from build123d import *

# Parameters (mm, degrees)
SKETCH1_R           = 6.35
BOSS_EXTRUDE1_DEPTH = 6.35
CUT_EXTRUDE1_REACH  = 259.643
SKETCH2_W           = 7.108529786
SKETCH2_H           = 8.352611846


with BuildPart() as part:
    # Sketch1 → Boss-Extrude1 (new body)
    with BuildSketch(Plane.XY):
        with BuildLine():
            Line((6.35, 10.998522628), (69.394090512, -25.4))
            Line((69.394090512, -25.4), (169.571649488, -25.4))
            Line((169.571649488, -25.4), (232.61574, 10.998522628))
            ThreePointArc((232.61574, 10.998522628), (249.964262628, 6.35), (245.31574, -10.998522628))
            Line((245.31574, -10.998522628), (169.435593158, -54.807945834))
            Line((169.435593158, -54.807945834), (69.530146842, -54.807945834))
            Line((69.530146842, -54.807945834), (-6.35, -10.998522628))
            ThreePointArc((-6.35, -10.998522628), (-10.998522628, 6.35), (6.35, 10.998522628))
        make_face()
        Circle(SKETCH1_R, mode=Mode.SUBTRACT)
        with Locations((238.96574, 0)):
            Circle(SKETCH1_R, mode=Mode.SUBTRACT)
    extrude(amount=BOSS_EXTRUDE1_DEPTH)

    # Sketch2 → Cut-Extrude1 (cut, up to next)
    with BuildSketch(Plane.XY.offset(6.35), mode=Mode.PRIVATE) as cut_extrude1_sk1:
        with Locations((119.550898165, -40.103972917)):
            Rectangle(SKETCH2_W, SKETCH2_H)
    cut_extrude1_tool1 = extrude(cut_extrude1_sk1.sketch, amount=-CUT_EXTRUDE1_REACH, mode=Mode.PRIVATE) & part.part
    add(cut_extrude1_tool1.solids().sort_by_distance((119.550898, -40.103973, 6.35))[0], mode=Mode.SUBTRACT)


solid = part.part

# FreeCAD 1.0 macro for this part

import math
import FreeCAD as App
import Part
import Sketcher

V = App.Vector
Q = App.Units.Quantity

doc = App.newDocument("Part")
body = doc.addObject("PartDesign::Body", "Body")

# Sketch on XY plane
sketch1 = body.newObject("Sketcher::SketchObject", "Sketch")
sketch1.AttachmentSupport = (doc.getObject("XY_Plane"), [""])
sketch1.MapMode = "FlatFace"
sketch1.addGeometry(Part.LineSegment(V(69, -25, 0), V(6, 11, 0)), False)
sketch1.addGeometry(Part.ArcOfCircle(Part.Circle(V(0, 0, 0), V(0, 0, 1), 13), math.radians(60), math.radians(240)), False)
sketch1.addGeometry(Part.LineSegment(V(-6, -11, 0), V(70, -55, 0)), False)
sketch1.addGeometry(Part.LineSegment(V(70, -55, 0), V(169, -55, 0)), False)
sketch1.addGeometry(Part.LineSegment(V(169, -55, 0), V(245, -11, 0)), False)
sketch1.addGeometry(Part.ArcOfCircle(Part.Circle(V(239, 0, 0), V(0, 0, 1), 13), math.radians(-60), math.radians(120)), False)
sketch1.addGeometry(Part.LineSegment(V(233, 11, 0), V(170, -25, 0)), False)
sketch1.addGeometry(Part.LineSegment(V(170, -25, 0), V(69, -25, 0)), False)
sketch1.addGeometry(Part.Circle(V(239, 0, 0), V(0, 0, 1), 6), False)
sketch1.addGeometry(Part.Circle(V(0, 0, 0), V(0, 0, 1), 6), False)
sketch1.addConstraint(Sketcher.Constraint("Tangent", 0, 2, 1, 1))
sketch1.addConstraint(Sketcher.Constraint("Tangent", 1, 2, 2, 1))
sketch1.addConstraint(Sketcher.Constraint("Coincident", 2, 2, 3, 1))
sketch1.addConstraint(Sketcher.Constraint("Coincident", 3, 2, 4, 1))
sketch1.addConstraint(Sketcher.Constraint("Tangent", 4, 2, 5, 1))
sketch1.addConstraint(Sketcher.Constraint("Tangent", 5, 2, 6, 1))
sketch1.addConstraint(Sketcher.Constraint("Coincident", 6, 2, 7, 1))
sketch1.addConstraint(Sketcher.Constraint("Coincident", 7, 2, 0, 1))
sketch1.addConstraint(Sketcher.Constraint("Horizontal", 3))
sketch1.addConstraint(Sketcher.Constraint("Horizontal", 7))
sketch1.addConstraint(Sketcher.Constraint("Coincident", 1, 3, -1, 1))
sketch1.addConstraint(Sketcher.Constraint("Coincident", 9, 3, -1, 1))
sketch1.addConstraint(Sketcher.Constraint("Coincident", 8, 3, 5, 3))
sketch1.addConstraint(Sketcher.Constraint("Equal", 1, 5))
sketch1.addConstraint(Sketcher.Constraint("Equal", 8, 9))
sketch1.addConstraint(Sketcher.Constraint("PointOnObject", 5, 3, -1))
sketch1.addConstraint(Sketcher.Constraint("Parallel", 0, 2))
sketch1.addConstraint(Sketcher.Constraint("Parallel", 4, 6))
sketch1.addConstraint(Sketcher.Constraint("Horizontal", 1, 2, 4, 2))
sketch1.addConstraint(Sketcher.Constraint("Diameter", 8, Q("0.5 in")))
sketch1.addConstraint(Sketcher.Constraint("Radius", 1, Q("0.5 in")))
sketch1.addConstraint(Sketcher.Constraint("DistanceY", 6, 2, -1, 1, Q("1 in")))
sketch1.addConstraint(Sketcher.Constraint("Angle", 0, Q("150 deg")))
sketch1.addConstraint(Sketcher.Constraint("DistanceX", -1, 1, 5, 3, Q("9.4081 in")))
sketch1.addConstraint(Sketcher.Constraint("DistanceX", 3, 1, 3, 2, 99.905446))
pad1 = body.newObject("PartDesign::Pad", "Pad")
pad1.Profile = sketch1
pad1.Length = Q("0.25 in")

# Sketch on XY plane
sketch2 = body.newObject("Sketcher::SketchObject", "Sketch001")
sketch2.AttachmentSupport = (doc.getObject("XY_Plane"), [""])
sketch2.MapMode = "FlatFace"
sketch2.AttachmentOffset = App.Placement(V(0, 0, 0.25 * 25.4), App.Rotation())
sketch2.addGeometry(Part.LineSegment(V(116, -36, 0), V(116, -44, 0)), False)
sketch2.addGeometry(Part.LineSegment(V(116, -44, 0), V(123, -44, 0)), False)
sketch2.addGeometry(Part.LineSegment(V(123, -44, 0), V(123, -36, 0)), False)
sketch2.addGeometry(Part.LineSegment(V(123, -36, 0), V(116, -36, 0)), False)
sketch2.addConstraint(Sketcher.Constraint("Coincident", 0, 2, 1, 1))
sketch2.addConstraint(Sketcher.Constraint("Coincident", 1, 2, 2, 1))
sketch2.addConstraint(Sketcher.Constraint("Coincident", 2, 2, 3, 1))
sketch2.addConstraint(Sketcher.Constraint("Coincident", 3, 2, 0, 1))
sketch2.addConstraint(Sketcher.Constraint("Vertical", 0))
sketch2.addConstraint(Sketcher.Constraint("Horizontal", 1))
sketch2.addConstraint(Sketcher.Constraint("Vertical", 2))
sketch2.addConstraint(Sketcher.Constraint("Horizontal", 3))
sketch2.addConstraint(Sketcher.Constraint("DistanceX", 1, 1, 1, 2, 7.10853))
sketch2.addConstraint(Sketcher.Constraint("DistanceY", 0, 2, 0, 1, 8.352612))
sketch2.addConstraint(Sketcher.Constraint("DistanceY", 0, 2, -1, 1, 44.280279))
sketch2.addConstraint(Sketcher.Constraint("DistanceX", -1, 1, 0, 2, 115.996633))
pocket1 = body.newObject("PartDesign::Pocket", "Pocket")
pocket1.Profile = sketch2
pocket1.Type = "UpToFirst"

doc.recompute()
